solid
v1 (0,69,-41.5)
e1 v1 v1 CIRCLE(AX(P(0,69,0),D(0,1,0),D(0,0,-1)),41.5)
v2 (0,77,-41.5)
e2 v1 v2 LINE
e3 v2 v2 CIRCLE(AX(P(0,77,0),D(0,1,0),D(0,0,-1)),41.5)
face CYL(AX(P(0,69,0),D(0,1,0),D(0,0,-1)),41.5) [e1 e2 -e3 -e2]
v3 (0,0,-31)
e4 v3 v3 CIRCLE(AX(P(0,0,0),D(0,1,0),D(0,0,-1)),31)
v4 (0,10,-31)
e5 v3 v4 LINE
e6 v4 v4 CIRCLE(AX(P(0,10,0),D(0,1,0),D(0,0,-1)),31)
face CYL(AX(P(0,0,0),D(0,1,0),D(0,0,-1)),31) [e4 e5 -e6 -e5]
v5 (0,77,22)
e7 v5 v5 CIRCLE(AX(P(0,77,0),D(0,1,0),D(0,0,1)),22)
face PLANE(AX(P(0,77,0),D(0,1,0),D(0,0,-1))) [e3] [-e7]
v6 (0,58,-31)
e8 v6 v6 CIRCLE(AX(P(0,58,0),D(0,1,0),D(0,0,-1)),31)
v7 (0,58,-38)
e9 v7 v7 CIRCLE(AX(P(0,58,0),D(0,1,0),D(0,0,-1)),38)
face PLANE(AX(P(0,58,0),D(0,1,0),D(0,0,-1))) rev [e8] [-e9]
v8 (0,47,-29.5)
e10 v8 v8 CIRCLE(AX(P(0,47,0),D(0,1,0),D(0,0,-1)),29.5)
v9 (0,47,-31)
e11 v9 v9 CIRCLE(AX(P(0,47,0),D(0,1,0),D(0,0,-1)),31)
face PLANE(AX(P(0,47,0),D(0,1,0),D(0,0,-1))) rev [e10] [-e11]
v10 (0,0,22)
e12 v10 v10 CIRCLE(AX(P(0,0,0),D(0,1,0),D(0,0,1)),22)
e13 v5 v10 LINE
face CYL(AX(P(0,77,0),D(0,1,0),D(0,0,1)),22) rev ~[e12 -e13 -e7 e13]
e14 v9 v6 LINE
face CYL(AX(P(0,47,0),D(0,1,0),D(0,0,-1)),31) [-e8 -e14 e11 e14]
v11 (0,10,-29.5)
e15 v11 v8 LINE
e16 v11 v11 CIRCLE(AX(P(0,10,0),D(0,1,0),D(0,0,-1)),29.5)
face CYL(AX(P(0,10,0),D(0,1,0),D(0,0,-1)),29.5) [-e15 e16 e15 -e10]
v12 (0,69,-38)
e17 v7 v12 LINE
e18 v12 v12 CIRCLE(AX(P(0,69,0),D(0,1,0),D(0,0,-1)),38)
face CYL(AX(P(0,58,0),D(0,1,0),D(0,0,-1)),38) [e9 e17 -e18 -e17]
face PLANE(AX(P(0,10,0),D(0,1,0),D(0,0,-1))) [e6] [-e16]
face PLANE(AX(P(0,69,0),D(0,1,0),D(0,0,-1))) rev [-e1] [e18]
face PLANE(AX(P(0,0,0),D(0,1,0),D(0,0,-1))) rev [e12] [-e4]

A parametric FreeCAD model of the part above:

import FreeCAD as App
import Part
import Sketcher
from FreeCAD import Vector

doc = App.newDocument("Part")
params = doc.addObject("Spreadsheet::Sheet", "Params")
for row, (alias, value) in enumerate([
    ("sketch1_width", "31 mm"),
    ("sketch1_width2", "7 mm"),
    ("sketch1_height", "10 mm"),
    ("sketch1_height2", "37 mm"),
    ("sketch1_height3", "11 mm"),
    ("revolution_angle", "360 deg"),
    ("sketch2_diameter", "44 mm"),
    ("pocket1_length", "77 mm"),
], start=1):
    params.set(f"A{row}", alias)
    params.set(f"B{row}", "=" + value)
    params.setAlias(f"B{row}", alias)

body = doc.addObject("PartDesign::Body", "Body")

# Sketch on XY plane
sketch1 = body.newObject("Sketcher::SketchObject", "Sketch")
sketch1.AttachmentSupport = (doc.getObject("XY_Plane"), [""])
sketch1.MapMode = "FlatFace"
sketch1.addGeometry(Part.LineSegment(Vector(0, 0, 0), Vector(31, 0, 0)), False)
sketch1.addGeometry(Part.LineSegment(Vector(31, 0, 0), Vector(31, 10, 0)), False)
sketch1.addGeometry(Part.LineSegment(Vector(31, 10, 0), Vector(29.5, 10, 0)), False)
sketch1.addGeometry(Part.LineSegment(Vector(29.5, 10, 0), Vector(29.5, 47, 0)), False)
sketch1.addGeometry(Part.LineSegment(Vector(29.5, 47, 0), Vector(31, 47, 0)), False)
sketch1.addGeometry(Part.LineSegment(Vector(31, 47, 0), Vector(31, 58, 0)), False)
sketch1.addGeometry(Part.LineSegment(Vector(31, 58, 0), Vector(38, 58, 0)), False)
sketch1.addGeometry(Part.LineSegment(Vector(38, 58, 0), Vector(38, 69, 0)), False)
sketch1.addGeometry(Part.LineSegment(Vector(38, 69, 0), Vector(41.5, 69, 0)), False)
sketch1.addGeometry(Part.LineSegment(Vector(41.5, 69, 0), Vector(41.5, 77, 0)), False)
sketch1.addGeometry(Part.LineSegment(Vector(41.5, 77, 0), Vector(0, 77, 0)), False)
sketch1.addGeometry(Part.LineSegment(Vector(0, 77, 0), Vector(0, 0, 0)), False)
sketch1.addConstraint(Sketcher.Constraint("Coincident", 0, 2, 1, 1))
sketch1.addConstraint(Sketcher.Constraint("Coincident", 1, 2, 2, 1))
sketch1.addConstraint(Sketcher.Constraint("Coincident", 2, 2, 3, 1))
sketch1.addConstraint(Sketcher.Constraint("Coincident", 3, 2, 4, 1))
sketch1.addConstraint(Sketcher.Constraint("Coincident", 4, 2, 5, 1))
sketch1.addConstraint(Sketcher.Constraint("Coincident", 5, 2, 6, 1))
sketch1.addConstraint(Sketcher.Constraint("Coincident", 6, 2, 7, 1))
sketch1.addConstraint(Sketcher.Constraint("Coincident", 7, 2, 8, 1))
sketch1.addConstraint(Sketcher.Constraint("Coincident", 8, 2, 9, 1))
sketch1.addConstraint(Sketcher.Constraint("Coincident", 9, 2, 10, 1))
sketch1.addConstraint(Sketcher.Constraint("Coincident", 10, 2, 11, 1))
sketch1.addConstraint(Sketcher.Constraint("Coincident", 11, 2, 0, 1))
sketch1.addConstraint(Sketcher.Constraint("Horizontal", 0))
sketch1.addConstraint(Sketcher.Constraint("Vertical", 1))
sketch1.addConstraint(Sketcher.Constraint("Horizontal", 2))
sketch1.addConstraint(Sketcher.Constraint("Vertical", 3))
sketch1.addConstraint(Sketcher.Constraint("Horizontal", 4))
sketch1.addConstraint(Sketcher.Constraint("Vertical", 5))
sketch1.addConstraint(Sketcher.Constraint("Horizontal", 6))
sketch1.addConstraint(Sketcher.Constraint("Vertical", 7))
sketch1.addConstraint(Sketcher.Constraint("Horizontal", 8))
sketch1.addConstraint(Sketcher.Constraint("Vertical", 9))
sketch1.addConstraint(Sketcher.Constraint("Horizontal", 10))
sketch1.addConstraint(Sketcher.Constraint("Vertical", 11))
sketch1.addConstraint(Sketcher.Constraint("Coincident", 11, 2, -1, 1))
sketch1.addConstraint(Sketcher.Constraint("Vertical", 1, 2, 4, 2))
sketch1.addConstraint(Sketcher.Constraint("Equal", 5, 7))
sketch1.addConstraint(Sketcher.Constraint("DistanceX", 0, 1, 0, 2, 31.0))
sketch1.addConstraint(Sketcher.Constraint("DistanceX", 6, 1, 6, 2, 7.0))
sketch1.addConstraint(Sketcher.Constraint("DistanceY", 1, 1, 1, 2, 10.0))
sketch1.addConstraint(Sketcher.Constraint("DistanceY", 3, 1, 3, 2, 37.0))
sketch1.addConstraint(Sketcher.Constraint("DistanceY", 5, 1, 5, 2, 11.0))
sketch1.addConstraint(Sketcher.Constraint("DistanceY", 9, 1, 9, 2, 8.0))
sketch1.addConstraint(Sketcher.Constraint("DistanceX", 2, 2, 2, 1, 1.5))
sketch1.addConstraint(Sketcher.Constraint("DistanceX", 8, 1, 8, 2, 3.5))
sketch1.setExpression("Constraints[27]", "Params.sketch1_width")
sketch1.setExpression("Constraints[28]", "Params.sketch1_width2")
sketch1.setExpression("Constraints[29]", "Params.sketch1_height")
sketch1.setExpression("Constraints[30]", "Params.sketch1_height2")
sketch1.setExpression("Constraints[31]", "Params.sketch1_height3")
revolution = body.newObject("PartDesign::Revolution", "Revolution")
revolution.Profile = sketch1
revolution.ReferenceAxis = (sketch1, ["V_Axis"])
revolution.setExpression("Angle", "Params.revolution_angle")

# Sketch on XZ plane
sketch2 = body.newObject("Sketcher::SketchObject", "Sketch001")
sketch2.AttachmentSupport = (doc.getObject("XZ_Plane"), [""])
sketch2.MapMode = "FlatFace"
sketch2.AttachmentOffset = App.Placement(Vector(0, 0, -77), App.Rotation())
sketch2.addGeometry(Part.Circle(Vector(0, 0, 0), Vector(0, 0, 1), 22), False)
sketch2.addConstraint(Sketcher.Constraint("Coincident", 0, 3, -1, 1))
sketch2.addConstraint(Sketcher.Constraint("Diameter", 0, 44.0))
sketch2.setExpression("Constraints[1]", "Params.sketch2_diameter")
pocket1 = body.newObject("PartDesign::Pocket", "Pocket")
pocket1.Profile = sketch2
pocket1.setExpression("Length", "Params.pocket1_length")
pocket1.Reversed = True

doc.recompute()
